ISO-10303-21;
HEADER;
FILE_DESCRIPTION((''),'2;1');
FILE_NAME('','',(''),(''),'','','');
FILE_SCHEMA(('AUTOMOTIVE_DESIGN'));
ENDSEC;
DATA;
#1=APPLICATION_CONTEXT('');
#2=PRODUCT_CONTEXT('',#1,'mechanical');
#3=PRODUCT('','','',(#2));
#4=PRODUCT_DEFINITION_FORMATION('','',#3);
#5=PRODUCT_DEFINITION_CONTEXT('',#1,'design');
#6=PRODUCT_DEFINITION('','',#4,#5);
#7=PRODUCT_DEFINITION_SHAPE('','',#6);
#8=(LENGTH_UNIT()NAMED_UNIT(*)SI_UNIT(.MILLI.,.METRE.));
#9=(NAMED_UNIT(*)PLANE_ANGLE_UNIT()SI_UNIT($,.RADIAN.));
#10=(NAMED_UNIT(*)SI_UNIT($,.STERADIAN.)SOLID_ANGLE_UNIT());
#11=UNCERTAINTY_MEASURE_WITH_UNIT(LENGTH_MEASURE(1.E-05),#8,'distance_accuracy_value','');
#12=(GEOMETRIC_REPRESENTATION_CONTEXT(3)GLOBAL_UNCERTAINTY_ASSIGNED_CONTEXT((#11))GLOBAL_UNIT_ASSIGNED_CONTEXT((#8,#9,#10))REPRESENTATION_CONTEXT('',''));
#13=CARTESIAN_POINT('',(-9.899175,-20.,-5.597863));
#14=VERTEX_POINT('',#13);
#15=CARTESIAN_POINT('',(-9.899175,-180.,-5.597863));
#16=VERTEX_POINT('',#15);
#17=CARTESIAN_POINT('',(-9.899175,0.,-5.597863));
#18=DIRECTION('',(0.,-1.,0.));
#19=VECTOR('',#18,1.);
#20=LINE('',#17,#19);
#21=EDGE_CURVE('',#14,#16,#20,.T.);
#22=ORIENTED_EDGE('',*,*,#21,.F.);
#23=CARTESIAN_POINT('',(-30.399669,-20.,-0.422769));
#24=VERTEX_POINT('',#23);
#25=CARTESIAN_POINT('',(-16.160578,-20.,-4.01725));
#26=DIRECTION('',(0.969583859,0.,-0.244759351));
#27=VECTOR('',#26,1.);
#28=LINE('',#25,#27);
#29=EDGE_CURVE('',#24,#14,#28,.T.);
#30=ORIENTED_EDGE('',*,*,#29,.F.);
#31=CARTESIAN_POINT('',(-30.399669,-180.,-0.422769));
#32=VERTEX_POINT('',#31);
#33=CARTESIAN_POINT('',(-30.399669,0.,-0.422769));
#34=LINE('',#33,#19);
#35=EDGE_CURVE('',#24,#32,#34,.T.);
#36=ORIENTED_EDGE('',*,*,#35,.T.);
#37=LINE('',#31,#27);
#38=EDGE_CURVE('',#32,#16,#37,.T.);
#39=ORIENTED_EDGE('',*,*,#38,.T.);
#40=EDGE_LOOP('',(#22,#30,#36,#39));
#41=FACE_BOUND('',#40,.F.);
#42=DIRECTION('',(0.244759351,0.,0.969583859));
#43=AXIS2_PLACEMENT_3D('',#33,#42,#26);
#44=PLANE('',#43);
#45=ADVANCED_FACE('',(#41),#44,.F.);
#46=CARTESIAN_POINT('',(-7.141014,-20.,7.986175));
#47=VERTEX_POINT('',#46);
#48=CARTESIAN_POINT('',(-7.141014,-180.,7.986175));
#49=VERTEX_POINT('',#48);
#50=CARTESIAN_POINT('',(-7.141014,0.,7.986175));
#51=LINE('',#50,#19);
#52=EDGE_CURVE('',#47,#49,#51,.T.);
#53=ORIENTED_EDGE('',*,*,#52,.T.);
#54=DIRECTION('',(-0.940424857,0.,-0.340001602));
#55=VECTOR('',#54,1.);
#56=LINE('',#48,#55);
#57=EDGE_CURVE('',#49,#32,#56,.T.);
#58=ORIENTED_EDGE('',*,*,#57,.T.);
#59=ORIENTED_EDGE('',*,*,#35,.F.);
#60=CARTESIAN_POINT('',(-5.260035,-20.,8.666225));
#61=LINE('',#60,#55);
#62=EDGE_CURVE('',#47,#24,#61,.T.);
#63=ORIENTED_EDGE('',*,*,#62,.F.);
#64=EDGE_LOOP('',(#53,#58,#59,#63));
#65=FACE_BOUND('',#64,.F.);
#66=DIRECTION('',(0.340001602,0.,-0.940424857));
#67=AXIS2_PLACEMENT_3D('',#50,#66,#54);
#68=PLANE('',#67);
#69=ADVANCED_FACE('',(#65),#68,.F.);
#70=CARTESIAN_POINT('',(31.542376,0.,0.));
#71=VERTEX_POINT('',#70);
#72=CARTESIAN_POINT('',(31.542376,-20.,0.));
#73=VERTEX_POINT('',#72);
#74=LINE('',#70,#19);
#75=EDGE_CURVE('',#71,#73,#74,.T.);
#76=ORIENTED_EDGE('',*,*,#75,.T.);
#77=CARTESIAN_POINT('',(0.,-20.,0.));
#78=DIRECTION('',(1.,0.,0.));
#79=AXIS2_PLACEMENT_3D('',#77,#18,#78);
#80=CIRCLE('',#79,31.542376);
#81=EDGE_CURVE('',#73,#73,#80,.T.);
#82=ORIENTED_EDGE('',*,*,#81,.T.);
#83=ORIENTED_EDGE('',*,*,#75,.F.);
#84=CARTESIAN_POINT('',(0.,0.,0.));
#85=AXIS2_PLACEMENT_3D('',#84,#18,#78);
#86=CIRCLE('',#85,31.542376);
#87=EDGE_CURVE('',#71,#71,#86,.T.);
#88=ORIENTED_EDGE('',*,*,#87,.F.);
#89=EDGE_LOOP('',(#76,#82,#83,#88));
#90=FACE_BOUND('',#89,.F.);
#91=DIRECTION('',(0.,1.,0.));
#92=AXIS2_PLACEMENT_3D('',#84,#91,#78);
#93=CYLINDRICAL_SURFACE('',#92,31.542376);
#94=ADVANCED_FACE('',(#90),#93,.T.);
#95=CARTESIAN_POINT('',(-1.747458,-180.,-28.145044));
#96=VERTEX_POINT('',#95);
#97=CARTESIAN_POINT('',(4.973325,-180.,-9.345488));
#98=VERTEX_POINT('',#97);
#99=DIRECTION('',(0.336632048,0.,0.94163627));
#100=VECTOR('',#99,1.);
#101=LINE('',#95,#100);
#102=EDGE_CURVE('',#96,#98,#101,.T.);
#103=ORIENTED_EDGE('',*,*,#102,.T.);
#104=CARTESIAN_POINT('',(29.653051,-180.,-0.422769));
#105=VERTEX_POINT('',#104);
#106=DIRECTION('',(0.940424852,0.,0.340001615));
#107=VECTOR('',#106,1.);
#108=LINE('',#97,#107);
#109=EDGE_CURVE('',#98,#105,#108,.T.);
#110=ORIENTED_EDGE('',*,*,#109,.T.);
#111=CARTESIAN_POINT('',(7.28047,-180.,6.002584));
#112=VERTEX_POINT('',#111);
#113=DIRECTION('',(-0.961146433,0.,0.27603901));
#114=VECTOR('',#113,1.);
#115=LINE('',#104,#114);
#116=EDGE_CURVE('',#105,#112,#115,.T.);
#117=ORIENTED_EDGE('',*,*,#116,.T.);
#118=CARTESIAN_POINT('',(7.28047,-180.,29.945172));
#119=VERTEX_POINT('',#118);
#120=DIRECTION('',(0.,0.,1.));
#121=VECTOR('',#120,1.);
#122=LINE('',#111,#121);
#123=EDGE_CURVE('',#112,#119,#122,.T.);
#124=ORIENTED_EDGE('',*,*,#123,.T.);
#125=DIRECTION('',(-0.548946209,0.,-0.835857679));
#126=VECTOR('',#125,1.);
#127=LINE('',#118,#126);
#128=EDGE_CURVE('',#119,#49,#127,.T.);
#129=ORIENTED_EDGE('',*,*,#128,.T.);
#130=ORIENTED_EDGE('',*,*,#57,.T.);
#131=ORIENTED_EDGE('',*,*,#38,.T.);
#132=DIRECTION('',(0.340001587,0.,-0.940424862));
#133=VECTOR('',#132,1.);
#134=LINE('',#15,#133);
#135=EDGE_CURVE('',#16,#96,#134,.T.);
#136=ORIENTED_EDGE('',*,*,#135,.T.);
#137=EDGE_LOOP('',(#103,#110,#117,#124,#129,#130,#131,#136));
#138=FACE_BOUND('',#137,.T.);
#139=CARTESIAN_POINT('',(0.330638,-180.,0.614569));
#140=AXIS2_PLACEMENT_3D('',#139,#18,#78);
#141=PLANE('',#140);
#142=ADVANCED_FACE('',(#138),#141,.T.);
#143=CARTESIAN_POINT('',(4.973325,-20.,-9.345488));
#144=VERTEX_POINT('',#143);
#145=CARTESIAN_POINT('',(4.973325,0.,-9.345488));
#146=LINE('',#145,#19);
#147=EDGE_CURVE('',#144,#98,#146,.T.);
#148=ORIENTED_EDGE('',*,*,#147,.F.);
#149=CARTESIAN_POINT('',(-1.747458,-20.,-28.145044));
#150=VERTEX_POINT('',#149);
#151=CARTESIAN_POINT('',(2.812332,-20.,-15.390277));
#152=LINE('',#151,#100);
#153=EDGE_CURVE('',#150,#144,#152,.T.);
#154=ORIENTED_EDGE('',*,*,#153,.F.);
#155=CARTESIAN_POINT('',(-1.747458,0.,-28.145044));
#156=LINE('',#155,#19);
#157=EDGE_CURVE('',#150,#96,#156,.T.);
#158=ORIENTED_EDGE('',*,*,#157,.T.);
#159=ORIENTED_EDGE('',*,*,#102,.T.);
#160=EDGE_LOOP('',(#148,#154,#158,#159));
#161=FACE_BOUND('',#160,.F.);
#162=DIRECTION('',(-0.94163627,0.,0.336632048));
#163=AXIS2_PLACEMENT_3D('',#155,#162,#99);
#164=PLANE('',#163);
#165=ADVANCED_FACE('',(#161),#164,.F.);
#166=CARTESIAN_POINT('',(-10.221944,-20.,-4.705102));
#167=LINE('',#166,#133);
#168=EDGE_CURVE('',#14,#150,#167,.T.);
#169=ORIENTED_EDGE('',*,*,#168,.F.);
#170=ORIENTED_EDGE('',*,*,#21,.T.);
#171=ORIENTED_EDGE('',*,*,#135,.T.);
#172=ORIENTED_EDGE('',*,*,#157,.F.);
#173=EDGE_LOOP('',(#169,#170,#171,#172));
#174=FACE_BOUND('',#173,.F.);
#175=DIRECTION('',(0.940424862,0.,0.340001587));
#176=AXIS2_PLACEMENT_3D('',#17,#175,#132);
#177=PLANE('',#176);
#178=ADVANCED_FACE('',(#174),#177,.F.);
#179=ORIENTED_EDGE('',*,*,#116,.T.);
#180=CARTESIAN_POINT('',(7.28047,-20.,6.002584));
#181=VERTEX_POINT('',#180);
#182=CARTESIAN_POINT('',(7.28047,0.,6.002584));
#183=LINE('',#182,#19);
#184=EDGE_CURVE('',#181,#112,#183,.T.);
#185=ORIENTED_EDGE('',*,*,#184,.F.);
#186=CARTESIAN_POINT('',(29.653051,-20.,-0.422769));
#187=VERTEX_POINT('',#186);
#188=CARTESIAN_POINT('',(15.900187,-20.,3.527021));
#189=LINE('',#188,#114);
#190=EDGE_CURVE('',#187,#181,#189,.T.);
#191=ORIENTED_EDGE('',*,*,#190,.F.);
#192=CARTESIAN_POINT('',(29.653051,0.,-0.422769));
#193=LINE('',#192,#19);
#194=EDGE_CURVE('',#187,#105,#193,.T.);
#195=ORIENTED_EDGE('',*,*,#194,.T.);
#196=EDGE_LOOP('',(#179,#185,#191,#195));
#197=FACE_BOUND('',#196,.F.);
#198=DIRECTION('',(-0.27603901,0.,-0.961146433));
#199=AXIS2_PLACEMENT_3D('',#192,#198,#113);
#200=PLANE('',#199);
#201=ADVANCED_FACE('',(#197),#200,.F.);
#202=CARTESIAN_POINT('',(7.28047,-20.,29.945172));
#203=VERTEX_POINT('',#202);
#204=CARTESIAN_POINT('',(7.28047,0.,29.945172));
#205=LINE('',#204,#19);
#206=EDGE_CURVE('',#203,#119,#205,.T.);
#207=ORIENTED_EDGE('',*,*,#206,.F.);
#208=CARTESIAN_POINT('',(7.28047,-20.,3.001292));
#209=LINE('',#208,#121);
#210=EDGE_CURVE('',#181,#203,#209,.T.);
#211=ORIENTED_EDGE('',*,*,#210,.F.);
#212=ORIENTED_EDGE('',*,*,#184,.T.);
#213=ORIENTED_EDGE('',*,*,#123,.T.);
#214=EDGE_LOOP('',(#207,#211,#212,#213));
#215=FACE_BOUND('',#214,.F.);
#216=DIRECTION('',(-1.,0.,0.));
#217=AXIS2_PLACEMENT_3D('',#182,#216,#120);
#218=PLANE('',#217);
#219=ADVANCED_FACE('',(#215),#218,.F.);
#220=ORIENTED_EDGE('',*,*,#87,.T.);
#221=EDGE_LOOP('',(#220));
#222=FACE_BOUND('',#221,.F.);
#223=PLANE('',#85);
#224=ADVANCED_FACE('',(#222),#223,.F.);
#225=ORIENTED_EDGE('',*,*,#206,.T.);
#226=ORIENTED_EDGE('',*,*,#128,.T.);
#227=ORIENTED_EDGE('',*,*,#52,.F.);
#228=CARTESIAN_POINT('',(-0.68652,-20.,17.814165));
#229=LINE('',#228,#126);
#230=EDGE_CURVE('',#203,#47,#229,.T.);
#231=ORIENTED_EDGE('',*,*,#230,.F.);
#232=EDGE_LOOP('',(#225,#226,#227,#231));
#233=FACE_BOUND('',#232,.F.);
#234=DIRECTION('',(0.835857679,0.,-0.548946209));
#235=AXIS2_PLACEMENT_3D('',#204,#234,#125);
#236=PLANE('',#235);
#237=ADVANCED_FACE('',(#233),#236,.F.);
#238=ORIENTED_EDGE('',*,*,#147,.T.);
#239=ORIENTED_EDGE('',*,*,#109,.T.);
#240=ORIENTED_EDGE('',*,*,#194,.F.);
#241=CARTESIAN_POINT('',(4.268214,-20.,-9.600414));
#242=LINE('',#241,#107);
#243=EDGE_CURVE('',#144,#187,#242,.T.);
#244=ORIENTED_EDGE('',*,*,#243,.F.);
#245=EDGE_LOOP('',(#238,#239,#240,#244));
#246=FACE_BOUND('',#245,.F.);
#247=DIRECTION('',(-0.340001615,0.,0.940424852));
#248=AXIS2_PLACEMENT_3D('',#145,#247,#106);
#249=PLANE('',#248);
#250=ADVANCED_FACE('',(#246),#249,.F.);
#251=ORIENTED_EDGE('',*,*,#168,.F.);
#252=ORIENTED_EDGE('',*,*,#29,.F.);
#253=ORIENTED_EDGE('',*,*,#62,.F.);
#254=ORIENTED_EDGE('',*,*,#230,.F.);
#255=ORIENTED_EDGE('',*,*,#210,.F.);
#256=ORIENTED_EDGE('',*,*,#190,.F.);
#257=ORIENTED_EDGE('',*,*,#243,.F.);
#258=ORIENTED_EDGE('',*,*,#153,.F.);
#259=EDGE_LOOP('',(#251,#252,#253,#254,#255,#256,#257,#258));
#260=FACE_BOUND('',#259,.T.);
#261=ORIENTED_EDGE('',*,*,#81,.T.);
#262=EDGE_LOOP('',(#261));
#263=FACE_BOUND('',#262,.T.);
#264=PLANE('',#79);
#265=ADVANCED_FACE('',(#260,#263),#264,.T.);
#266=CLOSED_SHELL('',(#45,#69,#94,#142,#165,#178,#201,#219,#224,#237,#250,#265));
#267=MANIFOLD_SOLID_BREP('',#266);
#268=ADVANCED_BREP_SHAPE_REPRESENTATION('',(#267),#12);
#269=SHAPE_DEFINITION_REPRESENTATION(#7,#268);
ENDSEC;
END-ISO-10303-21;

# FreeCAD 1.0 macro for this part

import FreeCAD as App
import Part
import Sketcher


def add_polygon(sketch, points):
    """Adds a closed chain of lines whose ends are joined by coincident constraints."""
    first, n = sketch.GeometryCount, len(points)
    for a, b in zip(points, points[1:] + points[:1]):
        sketch.addGeometry(Part.LineSegment(App.Vector(*a, 0), App.Vector(*b, 0)), False)
    for i in range(n):
        sketch.addConstraint(Sketcher.Constraint("Coincident", first + i, 2, first + (i + 1) % n, 1))

doc = App.newDocument("Part")
params = doc.addObject("Spreadsheet::Sheet", "Params")
for row, (alias, value) in enumerate([
    ("pad1_length", "180 mm"),
    ("pad2_length", "20 mm"),
], start=1):
    params.set(f"A{row}", alias)
    params.set(f"B{row}", "=" + value)
    params.setAlias(f"B{row}", alias)

body = doc.addObject("PartDesign::Body", "Body")

# Sketch on XZ plane
sketch1 = body.newObject("Sketcher::SketchObject", "Sketch")
sketch1.AttachmentSupport = (doc.getObject("XZ_Plane"), [""])
sketch1.MapMode = "FlatFace"
add_polygon(sketch1, [(7.28047, 6.002584), (7.28047, 29.945172), (-7.141014, 7.986175), (-30.399669, -0.422769), (-9.899175, -5.597863), (-1.747458, -28.145044), (4.973325, -9.345488), (29.653051, -0.422769)])  # lines 0-7
sketch1.addConstraint(Sketcher.Constraint("Vertical", 0))
sketch1.addConstraint(Sketcher.Constraint("Perpendicular", 2, 4))
sketch1.addConstraint(Sketcher.Constraint("Perpendicular", 4, 6))
sketch1.addConstraint(Sketcher.Constraint("Horizontal", 2, 2, 6, 2))
sketch1.addConstraint(Sketcher.Constraint("Distance", 3, 21.143601))
sketch1.addConstraint(Sketcher.Constraint("DistanceY", 0, 1, 0, 2, 23.942588))
sketch1.addConstraint(Sketcher.Constraint("DistanceX", 3, 2, 5, 2, 14.8725))
sketch1.addConstraint(Sketcher.Constraint("Distance", 2, 24.732072))
sketch1.addConstraint(Sketcher.Constraint("DistanceX", -1, 1, 0, 2, 7.28047))
sketch1.addConstraint(Sketcher.Constraint("DistanceY", -1, 1, 0, 2, 29.945172))
sketch1.addConstraint(Sketcher.Constraint("DistanceX", 2, 2, -1, 1, 30.399669))
sketch1.addConstraint(Sketcher.Constraint("DistanceY", 2, 2, -1, 1, 0.422769))
sketch1.addConstraint(Sketcher.Constraint("DistanceX", -1, 1, 6, 2, 29.653051))
sketch1.addConstraint(Sketcher.Constraint("DistanceX", 3, 2, 1, 2, 2.758161))
sketch1.addConstraint(Sketcher.Constraint("DistanceY", 4, 2, 3, 2, 22.547181))
sketch1.addConstraint(Sketcher.Constraint("DistanceY", 4, 2, 1, 2, 36.131219))
pad1 = body.newObject("PartDesign::Pad", "Pad")
pad1.Profile = sketch1
pad1.setExpression("Length", "Params.pad1_length")

# Sketch on XZ plane
sketch2 = body.newObject("Sketcher::SketchObject", "Sketch001")
sketch2.AttachmentSupport = (doc.getObject("XZ_Plane"), [""])
sketch2.MapMode = "FlatFace"
sketch2.addGeometry(Part.Circle(App.Vector(0, 0, 0), App.Vector(0, 0, 1), 31.542376), False)
sketch2.addConstraint(Sketcher.Constraint("Coincident", 0, 3, -1, 1))
sketch2.addConstraint(Sketcher.Constraint("Diameter", 0, 63.084752))
pad2 = body.newObject("PartDesign::Pad", "Pad001")
pad2.Profile = sketch2
pad2.setExpression("Length", "Params.pad2_length")

doc.recompute()
